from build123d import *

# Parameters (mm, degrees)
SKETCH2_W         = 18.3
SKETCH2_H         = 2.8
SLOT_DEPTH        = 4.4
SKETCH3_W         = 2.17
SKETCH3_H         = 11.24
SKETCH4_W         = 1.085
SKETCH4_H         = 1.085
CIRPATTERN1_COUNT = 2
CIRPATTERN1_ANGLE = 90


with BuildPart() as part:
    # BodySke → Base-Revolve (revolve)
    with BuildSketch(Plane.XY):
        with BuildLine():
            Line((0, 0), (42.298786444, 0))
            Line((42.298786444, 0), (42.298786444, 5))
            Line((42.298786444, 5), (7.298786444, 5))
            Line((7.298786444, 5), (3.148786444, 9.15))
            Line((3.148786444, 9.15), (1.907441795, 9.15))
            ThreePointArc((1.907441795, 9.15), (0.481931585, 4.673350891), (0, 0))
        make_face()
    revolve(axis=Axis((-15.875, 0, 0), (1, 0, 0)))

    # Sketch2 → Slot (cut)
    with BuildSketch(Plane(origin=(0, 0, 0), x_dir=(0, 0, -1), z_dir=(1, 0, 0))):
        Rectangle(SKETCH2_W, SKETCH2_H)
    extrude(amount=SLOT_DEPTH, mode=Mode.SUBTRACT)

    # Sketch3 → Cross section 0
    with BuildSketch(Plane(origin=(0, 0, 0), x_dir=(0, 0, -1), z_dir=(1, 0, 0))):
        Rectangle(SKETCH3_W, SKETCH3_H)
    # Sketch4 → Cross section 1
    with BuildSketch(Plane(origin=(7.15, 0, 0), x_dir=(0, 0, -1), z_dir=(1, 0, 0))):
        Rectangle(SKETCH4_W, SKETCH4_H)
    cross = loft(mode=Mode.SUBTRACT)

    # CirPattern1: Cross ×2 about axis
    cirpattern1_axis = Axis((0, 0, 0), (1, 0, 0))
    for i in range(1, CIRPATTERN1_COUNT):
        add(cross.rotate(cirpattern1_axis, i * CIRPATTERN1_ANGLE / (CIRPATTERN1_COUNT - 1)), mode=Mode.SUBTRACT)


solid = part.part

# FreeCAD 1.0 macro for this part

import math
import FreeCAD as App
import Part
import Sketcher
Q = App.Units.Quantity

doc = App.newDocument("Part")
body = doc.addObject("PartDesign::Body", "Body")

sketch1 = body.newObject("Sketcher::SketchObject", "Sketch")
sketch1.AttachmentSupport = (doc.getObject("XY_Plane"), [""])
sketch1.MapMode = "FlatFace"
sketch1.addGeometry([
    Part.LineSegment(App.Vector(0, 0, 0), App.Vector(42.3, 0, 0)),
    Part.LineSegment(App.Vector(42.3, 0, 0), App.Vector(42.3, 5, 0)),
    Part.LineSegment(App.Vector(42.3, 5, 0), App.Vector(7.3, 5, 0)),
    Part.LineSegment(App.Vector(7.3, 5, 0), App.Vector(3.1, 9.2, 0)),
    Part.LineSegment(App.Vector(3.1, 9.2, 0), App.Vector(1.9, 9.2, 0)),
    Part.ArcOfCircle(Part.Circle(App.Vector(22.9, 0, 0), App.Vector(0, 0, 1), 22.9), math.radians(156), math.radians(180)),
], False)
sketch1.addConstraint([
    Sketcher.Constraint("Coincident", 0, 2, 1, 1),
    Sketcher.Constraint("Coincident", 1, 2, 2, 1),
    Sketcher.Constraint("Coincident", 2, 2, 3, 1),
    Sketcher.Constraint("Coincident", 3, 2, 4, 1),
    Sketcher.Constraint("Coincident", 4, 2, 5, 1),
    Sketcher.Constraint("Coincident", 5, 2, 0, 1),
    Sketcher.Constraint("Horizontal", 0),
    Sketcher.Constraint("Vertical", 1),
    Sketcher.Constraint("Horizontal", 2),
    Sketcher.Constraint("Horizontal", 4),
    Sketcher.Constraint("Coincident", 5, 2, -1, 1),
    Sketcher.Constraint("PointOnObject", 5, 3, -1),
    Sketcher.Constraint("Radius", 5, 22.9),
    Sketcher.Constraint("DistanceX", 2, 2, 2, 1, 35.0),
    Sketcher.Constraint("DistanceY", 1, 1, 1, 2, 5.0),
    Sketcher.Constraint("Angle", 3, Q("135 deg")),
    Sketcher.Constraint("DistanceY", -1, 1, 3, 2, 9.15),
    Sketcher.Constraint("DistanceX", 0, 1, 0, 2, 42.298786),
])
revolution = body.newObject("PartDesign::Revolution", "Revolution")
revolution.Profile = sketch1
revolution.ReferenceAxis = (sketch1, ["H_Axis"])
revolution.Angle = 360

sketch2 = body.newObject("Sketcher::SketchObject", "Sketch001")
sketch2.AttachmentSupport = (doc.getObject("YZ_Plane"), [""])
sketch2.MapMode = "FlatFace"
sketch2.addGeometry([
    Part.LineSegment(App.Vector(1.4, 9.2, 0), App.Vector(-1.4, 9.2, 0)),
    Part.LineSegment(App.Vector(-1.4, 9.2, 0), App.Vector(-1.4, -9.2, 0)),
    Part.LineSegment(App.Vector(-1.4, -9.2, 0), App.Vector(1.4, -9.2, 0)),
    Part.LineSegment(App.Vector(1.4, -9.2, 0), App.Vector(1.4, 9.2, 0)),
], False)
sketch2.addConstraint([
    Sketcher.Constraint("Coincident", 0, 2, 1, 1),
    Sketcher.Constraint("Coincident", 1, 2, 2, 1),
    Sketcher.Constraint("Coincident", 2, 2, 3, 1),
    Sketcher.Constraint("Coincident", 3, 2, 0, 1),
    Sketcher.Constraint("Horizontal", 0),
    Sketcher.Constraint("Vertical", 1),
    Sketcher.Constraint("Horizontal", 2),
    Sketcher.Constraint("Vertical", 3),
    Sketcher.Constraint("Symmetric", 0, 2, 2, 2, -1, 1),
    Sketcher.Constraint("DistanceX", 0, 2, 0, 1, 2.8),
    Sketcher.Constraint("DistanceY", 1, 2, 1, 1, 18.3),
])
pocket1 = body.newObject("PartDesign::Pocket", "Pocket")
pocket1.Profile = sketch2
pocket1.Length = 4.4
pocket1.Reversed = True

sketch3 = body.newObject("Sketcher::SketchObject", "Sketch002")
sketch3.AttachmentSupport = (doc.getObject("YZ_Plane"), [""])
sketch3.MapMode = "FlatFace"
sketch3.addGeometry([
    Part.LineSegment(App.Vector(5.6, 1.1, 0), App.Vector(-5.6, 1.1, 0)),
    Part.LineSegment(App.Vector(-5.6, 1.1, 0), App.Vector(-5.6, -1.1, 0)),
    Part.LineSegment(App.Vector(-5.6, -1.1, 0), App.Vector(5.6, -1.1, 0)),
    Part.LineSegment(App.Vector(5.6, -1.1, 0), App.Vector(5.6, 1.1, 0)),
], False)
sketch3.addConstraint([
    Sketcher.Constraint("Coincident", 0, 2, 1, 1),
    Sketcher.Constraint("Coincident", 1, 2, 2, 1),
    Sketcher.Constraint("Coincident", 2, 2, 3, 1),
    Sketcher.Constraint("Coincident", 3, 2, 0, 1),
    Sketcher.Constraint("Horizontal", 0),
    Sketcher.Constraint("Vertical", 1),
    Sketcher.Constraint("Horizontal", 2),
    Sketcher.Constraint("Vertical", 3),
    Sketcher.Constraint("Symmetric", 0, 2, 2, 2, -1, 1),
    Sketcher.Constraint("DistanceX", 0, 2, 0, 1, 11.24),
    Sketcher.Constraint("DistanceY", 1, 2, 1, 1, 2.17),
])

sketch4 = body.newObject("Sketcher::SketchObject", "Sketch003")
sketch4.AttachmentSupport = (doc.getObject("YZ_Plane"), [""])
sketch4.MapMode = "FlatFace"
sketch4.AttachmentOffset = App.Placement(App.Vector(0, 0, 7.15), App.Rotation())
sketch4.addGeometry([
    Part.LineSegment(App.Vector(0.5, 0.5, 0), App.Vector(-0.5, 0.5, 0)),
    Part.LineSegment(App.Vector(-0.5, 0.5, 0), App.Vector(-0.5, -0.5, 0)),
    Part.LineSegment(App.Vector(-0.5, -0.5, 0), App.Vector(0.5, -0.5, 0)),
    Part.LineSegment(App.Vector(0.5, -0.5, 0), App.Vector(0.5, 0.5, 0)),
], False)
sketch4.addConstraint([
    Sketcher.Constraint("Coincident", 0, 2, 1, 1),
    Sketcher.Constraint("Coincident", 1, 2, 2, 1),
    Sketcher.Constraint("Coincident", 2, 2, 3, 1),
    Sketcher.Constraint("Coincident", 3, 2, 0, 1),
    Sketcher.Constraint("Horizontal", 0),
    Sketcher.Constraint("Vertical", 1),
    Sketcher.Constraint("Horizontal", 2),
    Sketcher.Constraint("Vertical", 3),
    Sketcher.Constraint("Symmetric", 0, 2, 2, 2, -1, 1),
    Sketcher.Constraint("Equal", 2, 1),
    Sketcher.Constraint("DistanceX", 0, 2, 0, 1, 1.085),
])

subtractiveloft = body.newObject("PartDesign::SubtractiveLoft", "SubtractiveLoft")
subtractiveloft.Profile = sketch3
subtractiveloft.Sections = [sketch4]
doc.recompute()

polarpattern = body.newObject("PartDesign::PolarPattern", "PolarPattern")
polarpattern.Originals = [subtractiveloft]
polarpattern.Axis = (doc.getObject("X_Axis"), [""])
polarpattern.Angle = 90
polarpattern.Occurrences = 2
body.Tip = polarpattern

doc.recompute()
